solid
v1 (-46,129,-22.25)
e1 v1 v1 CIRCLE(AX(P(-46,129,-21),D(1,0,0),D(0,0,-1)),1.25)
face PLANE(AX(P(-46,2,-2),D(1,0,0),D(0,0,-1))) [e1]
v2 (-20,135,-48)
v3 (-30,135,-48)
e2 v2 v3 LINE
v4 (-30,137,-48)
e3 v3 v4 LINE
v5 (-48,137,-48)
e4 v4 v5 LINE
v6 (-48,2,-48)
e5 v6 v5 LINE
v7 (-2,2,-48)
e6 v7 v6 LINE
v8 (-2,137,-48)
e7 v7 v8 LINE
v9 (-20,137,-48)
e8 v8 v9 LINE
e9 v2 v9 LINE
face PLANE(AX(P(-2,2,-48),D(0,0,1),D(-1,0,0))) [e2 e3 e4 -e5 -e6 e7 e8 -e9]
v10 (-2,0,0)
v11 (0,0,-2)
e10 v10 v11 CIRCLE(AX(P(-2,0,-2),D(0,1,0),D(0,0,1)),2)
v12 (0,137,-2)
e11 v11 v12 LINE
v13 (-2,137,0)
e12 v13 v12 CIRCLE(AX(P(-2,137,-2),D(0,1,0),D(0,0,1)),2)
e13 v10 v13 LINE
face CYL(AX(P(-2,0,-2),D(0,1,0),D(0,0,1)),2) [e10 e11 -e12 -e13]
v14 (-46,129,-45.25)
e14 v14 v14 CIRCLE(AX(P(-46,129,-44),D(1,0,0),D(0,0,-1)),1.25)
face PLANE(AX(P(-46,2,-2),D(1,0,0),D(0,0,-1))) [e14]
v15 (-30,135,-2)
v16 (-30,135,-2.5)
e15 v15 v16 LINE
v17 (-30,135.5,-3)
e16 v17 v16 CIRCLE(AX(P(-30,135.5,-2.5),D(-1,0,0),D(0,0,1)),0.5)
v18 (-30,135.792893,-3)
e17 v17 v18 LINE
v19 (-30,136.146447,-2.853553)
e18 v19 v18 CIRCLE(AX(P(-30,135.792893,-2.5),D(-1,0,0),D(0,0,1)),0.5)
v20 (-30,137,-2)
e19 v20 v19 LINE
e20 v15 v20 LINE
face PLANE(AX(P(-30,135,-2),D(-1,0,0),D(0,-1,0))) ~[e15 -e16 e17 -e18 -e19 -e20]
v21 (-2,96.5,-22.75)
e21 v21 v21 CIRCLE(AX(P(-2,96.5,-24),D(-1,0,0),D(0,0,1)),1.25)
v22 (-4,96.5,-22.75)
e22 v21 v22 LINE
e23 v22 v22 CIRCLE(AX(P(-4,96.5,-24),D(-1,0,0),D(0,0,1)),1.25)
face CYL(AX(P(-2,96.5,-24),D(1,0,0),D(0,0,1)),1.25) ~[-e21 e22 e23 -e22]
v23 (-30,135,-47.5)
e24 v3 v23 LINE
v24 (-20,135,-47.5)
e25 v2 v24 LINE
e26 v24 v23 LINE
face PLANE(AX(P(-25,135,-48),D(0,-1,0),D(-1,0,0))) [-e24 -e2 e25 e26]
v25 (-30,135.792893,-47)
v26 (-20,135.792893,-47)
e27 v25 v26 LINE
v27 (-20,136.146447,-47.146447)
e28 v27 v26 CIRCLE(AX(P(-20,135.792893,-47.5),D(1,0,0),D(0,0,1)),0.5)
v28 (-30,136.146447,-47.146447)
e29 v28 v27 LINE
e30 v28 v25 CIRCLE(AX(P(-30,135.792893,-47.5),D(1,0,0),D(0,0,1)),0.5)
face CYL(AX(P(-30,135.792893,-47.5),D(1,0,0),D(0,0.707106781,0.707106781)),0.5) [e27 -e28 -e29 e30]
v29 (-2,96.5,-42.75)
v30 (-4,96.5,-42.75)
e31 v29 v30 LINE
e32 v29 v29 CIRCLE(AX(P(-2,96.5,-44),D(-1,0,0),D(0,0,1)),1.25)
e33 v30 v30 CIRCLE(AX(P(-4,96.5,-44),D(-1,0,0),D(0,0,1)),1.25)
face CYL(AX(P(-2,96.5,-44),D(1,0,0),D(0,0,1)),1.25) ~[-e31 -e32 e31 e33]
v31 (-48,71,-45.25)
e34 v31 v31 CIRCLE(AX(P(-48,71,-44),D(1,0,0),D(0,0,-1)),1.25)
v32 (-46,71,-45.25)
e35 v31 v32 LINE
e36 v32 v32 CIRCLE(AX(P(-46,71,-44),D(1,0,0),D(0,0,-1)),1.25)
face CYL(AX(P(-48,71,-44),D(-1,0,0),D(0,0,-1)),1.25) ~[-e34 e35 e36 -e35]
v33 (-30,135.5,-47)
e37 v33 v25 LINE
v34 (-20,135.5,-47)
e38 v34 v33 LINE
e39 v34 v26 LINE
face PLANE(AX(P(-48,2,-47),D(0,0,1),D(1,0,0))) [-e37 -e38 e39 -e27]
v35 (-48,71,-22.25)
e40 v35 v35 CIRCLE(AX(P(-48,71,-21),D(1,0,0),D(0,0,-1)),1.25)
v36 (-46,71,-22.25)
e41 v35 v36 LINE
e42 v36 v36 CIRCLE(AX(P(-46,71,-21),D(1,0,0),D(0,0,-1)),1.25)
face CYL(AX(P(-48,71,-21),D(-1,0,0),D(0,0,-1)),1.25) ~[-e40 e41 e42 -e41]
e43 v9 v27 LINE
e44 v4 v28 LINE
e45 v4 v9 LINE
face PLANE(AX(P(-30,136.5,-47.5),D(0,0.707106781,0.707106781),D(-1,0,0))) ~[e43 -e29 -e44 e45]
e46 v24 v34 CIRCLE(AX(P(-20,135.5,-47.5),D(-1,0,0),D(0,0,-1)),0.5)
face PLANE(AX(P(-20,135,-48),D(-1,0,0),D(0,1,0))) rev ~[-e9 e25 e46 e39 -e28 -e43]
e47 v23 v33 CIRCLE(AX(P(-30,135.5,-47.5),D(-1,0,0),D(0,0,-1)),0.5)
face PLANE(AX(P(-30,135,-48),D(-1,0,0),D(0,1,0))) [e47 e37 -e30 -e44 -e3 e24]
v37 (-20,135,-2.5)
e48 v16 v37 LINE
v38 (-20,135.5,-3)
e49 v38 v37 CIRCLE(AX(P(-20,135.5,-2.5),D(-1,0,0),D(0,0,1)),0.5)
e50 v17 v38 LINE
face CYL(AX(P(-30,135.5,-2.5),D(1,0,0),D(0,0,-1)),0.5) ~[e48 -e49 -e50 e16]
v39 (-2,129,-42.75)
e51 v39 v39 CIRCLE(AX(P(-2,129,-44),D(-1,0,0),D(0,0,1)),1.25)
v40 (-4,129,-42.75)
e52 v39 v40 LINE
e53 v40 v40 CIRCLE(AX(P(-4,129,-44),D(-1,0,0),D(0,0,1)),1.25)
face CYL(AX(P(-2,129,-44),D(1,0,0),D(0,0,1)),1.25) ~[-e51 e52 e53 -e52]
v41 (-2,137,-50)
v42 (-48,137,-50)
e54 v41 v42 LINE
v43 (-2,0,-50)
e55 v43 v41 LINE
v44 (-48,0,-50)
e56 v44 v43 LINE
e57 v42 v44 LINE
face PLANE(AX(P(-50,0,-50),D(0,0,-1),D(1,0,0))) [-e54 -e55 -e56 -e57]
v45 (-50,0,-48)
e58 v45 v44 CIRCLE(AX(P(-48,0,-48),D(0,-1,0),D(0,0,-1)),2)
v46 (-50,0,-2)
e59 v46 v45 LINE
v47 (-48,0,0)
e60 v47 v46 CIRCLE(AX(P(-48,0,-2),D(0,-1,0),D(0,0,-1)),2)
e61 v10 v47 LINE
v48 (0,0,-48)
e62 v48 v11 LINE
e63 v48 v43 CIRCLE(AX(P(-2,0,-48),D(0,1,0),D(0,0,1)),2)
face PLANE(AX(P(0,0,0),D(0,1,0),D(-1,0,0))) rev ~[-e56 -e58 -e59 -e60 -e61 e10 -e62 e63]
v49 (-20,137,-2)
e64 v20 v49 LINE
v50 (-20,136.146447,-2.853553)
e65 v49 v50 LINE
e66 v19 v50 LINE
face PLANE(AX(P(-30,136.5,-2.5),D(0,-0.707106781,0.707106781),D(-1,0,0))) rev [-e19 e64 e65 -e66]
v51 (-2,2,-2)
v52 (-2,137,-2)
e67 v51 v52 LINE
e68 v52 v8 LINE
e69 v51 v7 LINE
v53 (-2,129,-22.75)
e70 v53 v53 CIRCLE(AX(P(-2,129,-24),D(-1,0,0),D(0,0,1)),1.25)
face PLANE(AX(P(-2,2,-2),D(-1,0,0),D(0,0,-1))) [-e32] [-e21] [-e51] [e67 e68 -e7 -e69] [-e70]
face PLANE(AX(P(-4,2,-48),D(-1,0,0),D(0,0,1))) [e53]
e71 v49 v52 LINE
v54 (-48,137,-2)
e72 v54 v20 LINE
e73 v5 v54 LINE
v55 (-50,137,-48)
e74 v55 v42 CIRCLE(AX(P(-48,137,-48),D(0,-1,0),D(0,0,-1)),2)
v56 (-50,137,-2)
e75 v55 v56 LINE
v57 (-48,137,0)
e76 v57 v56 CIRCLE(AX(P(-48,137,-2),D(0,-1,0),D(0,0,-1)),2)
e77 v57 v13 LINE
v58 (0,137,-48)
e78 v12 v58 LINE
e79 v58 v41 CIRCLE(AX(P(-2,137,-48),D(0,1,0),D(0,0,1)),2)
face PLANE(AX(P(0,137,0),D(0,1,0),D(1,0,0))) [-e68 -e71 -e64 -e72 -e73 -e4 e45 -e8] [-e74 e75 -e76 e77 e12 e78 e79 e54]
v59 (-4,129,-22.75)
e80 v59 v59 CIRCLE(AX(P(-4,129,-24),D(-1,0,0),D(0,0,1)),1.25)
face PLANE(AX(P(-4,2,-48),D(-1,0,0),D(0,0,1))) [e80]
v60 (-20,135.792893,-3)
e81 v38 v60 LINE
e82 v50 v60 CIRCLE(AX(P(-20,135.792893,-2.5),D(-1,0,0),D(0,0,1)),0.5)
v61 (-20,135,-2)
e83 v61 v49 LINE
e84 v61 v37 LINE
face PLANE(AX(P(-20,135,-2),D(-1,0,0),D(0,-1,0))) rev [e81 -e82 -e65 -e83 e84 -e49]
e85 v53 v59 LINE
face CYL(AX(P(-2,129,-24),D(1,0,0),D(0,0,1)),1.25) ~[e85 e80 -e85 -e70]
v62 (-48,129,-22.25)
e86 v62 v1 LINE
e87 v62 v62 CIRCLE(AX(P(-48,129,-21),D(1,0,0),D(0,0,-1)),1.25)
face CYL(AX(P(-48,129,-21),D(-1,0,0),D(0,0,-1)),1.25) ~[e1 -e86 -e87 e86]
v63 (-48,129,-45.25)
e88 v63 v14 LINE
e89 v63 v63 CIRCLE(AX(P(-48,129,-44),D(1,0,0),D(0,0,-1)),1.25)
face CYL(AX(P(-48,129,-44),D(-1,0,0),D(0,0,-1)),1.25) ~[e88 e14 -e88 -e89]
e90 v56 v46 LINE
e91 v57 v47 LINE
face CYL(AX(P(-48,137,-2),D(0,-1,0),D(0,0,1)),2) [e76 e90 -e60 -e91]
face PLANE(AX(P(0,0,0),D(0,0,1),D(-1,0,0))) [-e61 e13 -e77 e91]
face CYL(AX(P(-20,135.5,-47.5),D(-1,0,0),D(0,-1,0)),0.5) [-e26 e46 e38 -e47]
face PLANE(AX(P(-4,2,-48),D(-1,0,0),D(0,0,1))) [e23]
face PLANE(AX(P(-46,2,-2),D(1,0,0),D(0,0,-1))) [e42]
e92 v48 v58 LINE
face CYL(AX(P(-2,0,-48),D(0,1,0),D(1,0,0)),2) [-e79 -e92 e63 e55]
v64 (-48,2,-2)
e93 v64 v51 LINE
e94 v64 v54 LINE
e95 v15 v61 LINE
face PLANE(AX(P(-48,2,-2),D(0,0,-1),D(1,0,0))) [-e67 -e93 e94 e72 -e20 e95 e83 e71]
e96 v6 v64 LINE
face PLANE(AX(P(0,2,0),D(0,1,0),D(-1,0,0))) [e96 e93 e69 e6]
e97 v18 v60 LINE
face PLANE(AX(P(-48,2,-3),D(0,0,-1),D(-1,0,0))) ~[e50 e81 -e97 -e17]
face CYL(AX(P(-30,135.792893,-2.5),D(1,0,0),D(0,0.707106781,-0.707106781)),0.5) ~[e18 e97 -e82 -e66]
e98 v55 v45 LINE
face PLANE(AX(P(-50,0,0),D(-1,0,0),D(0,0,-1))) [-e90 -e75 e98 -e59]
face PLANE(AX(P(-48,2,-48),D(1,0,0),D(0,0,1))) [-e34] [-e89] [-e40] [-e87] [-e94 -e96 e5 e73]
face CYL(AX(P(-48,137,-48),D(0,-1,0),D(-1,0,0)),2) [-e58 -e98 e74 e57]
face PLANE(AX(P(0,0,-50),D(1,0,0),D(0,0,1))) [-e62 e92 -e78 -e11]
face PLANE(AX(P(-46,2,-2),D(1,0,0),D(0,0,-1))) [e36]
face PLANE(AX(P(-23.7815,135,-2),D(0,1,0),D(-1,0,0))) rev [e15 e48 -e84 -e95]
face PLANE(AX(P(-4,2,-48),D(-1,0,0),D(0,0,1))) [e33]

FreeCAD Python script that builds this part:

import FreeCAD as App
import Part
import Sketcher

V = App.Vector


def edges_at(feature, points):
    """Names of the edges that pass closest to the given points."""
    edges = feature.Shape.Edges
    near = lambda p: min(range(len(edges)), key=lambda i: edges[i].distToShape(Part.Vertex(*p))[0])
    return sorted({f"Edge{near(p) + 1}" for p in points})


def add_polygon(sketch, points):
    """Adds a closed chain of lines whose ends are joined by coincident constraints."""
    first, n = sketch.GeometryCount, len(points)
    for a, b in zip(points, points[1:] + points[:1]):
        sketch.addGeometry(Part.LineSegment(App.Vector(*a, 0), App.Vector(*b, 0)), False)
    for i in range(n):
        sketch.addConstraint(Sketcher.Constraint("Coincident", first + i, 2, first + (i + 1) % n, 1))

doc = App.newDocument("Part")
params = doc.addObject("Spreadsheet::Sheet", "Params")
for row, (alias, value) in enumerate([
    ("sketch1_width", "50 mm"),
    ("pad1_length", "2 mm"),
    ("sketch2_width", "50 mm"),
    ("pad2_length", "135 mm"),
    ("fillet_radius", "2 mm"),
    ("sketch3_diameter", "2.5 mm"),
    ("pad3_length", "2 mm"),
    ("sketch4_diameter", "2.5 mm"),
    ("pad4_length", "2 mm"),
    ("sketch5_height", "2 mm"),
    ("sketch5_width", "10 mm"),
    ("pad5_length", "1 mm"),
    ("chamfer_size", "1 mm"),
    ("chamfer2_size", "1 mm"),
    ("fillet2_radius", "0.5 mm"),
], start=1):
    params.set(f"A{row}", alias)
    params.set(f"B{row}", "=" + value)
    params.setAlias(f"B{row}", alias)

body = doc.addObject("PartDesign::Body", "Body")

# Sketch on XZ plane
sketch1 = body.newObject("Sketcher::SketchObject", "Sketch")
sketch1.AttachmentSupport = (doc.getObject("XZ_Plane"), [""])
sketch1.MapMode = "FlatFace"
add_polygon(sketch1, [(-50, 0), (0, 0), (0, -50), (-50, -50)])  # lines 0-3
sketch1.addConstraint([
    Sketcher.Constraint("Horizontal", 0),
    Sketcher.Constraint("Vertical", 1),
    Sketcher.Constraint("Horizontal", 2),
    Sketcher.Constraint("Vertical", 3),
    Sketcher.Constraint("Coincident", 0, 2, -1, 1),
    Sketcher.Constraint("Equal", 2, 1),
    Sketcher.Constraint("DistanceX", 0, 1, 0, 2, 50.0),
])
sketch1.setExpression("Constraints[10]", "Params.sketch1_width")
pad1 = body.newObject("PartDesign::Pad", "Pad")
pad1.Profile = sketch1
pad1.setExpression("Length", "Params.pad1_length")
pad1.Reversed = True

# Sketch on XZ plane
sketch2 = body.newObject("Sketcher::SketchObject", "Sketch001")
sketch2.AttachmentSupport = (doc.getObject("XZ_Plane"), [""])
sketch2.MapMode = "FlatFace"
sketch2.AttachmentOffset = App.Placement(V(0, 0, -2), App.Rotation())
add_polygon(sketch2, [(0, 0), (0, -50), (-50, -50), (-50, 0)])  # lines 0-3
add_polygon(sketch2, [(-2, -2), (-48, -2), (-48, -48), (-2, -48)])  # lines 4-7
sketch2.addConstraint([
    Sketcher.Constraint("Vertical", 0),
    Sketcher.Constraint("Horizontal", 1),
    Sketcher.Constraint("Vertical", 2),
    Sketcher.Constraint("Horizontal", 3),
    Sketcher.Constraint("Horizontal", 4),
    Sketcher.Constraint("Vertical", 5),
    Sketcher.Constraint("Horizontal", 6),
    Sketcher.Constraint("Vertical", 7),
    Sketcher.Constraint("Coincident", 3, 2, -1, 1),
    Sketcher.Constraint("Equal", 3, 0),
    Sketcher.Constraint("Equal", 6, 5),
    Sketcher.Constraint("DistanceY", 4, 2, -1, 1, 2.0),
    Sketcher.Constraint("DistanceX", 6, 2, -1, 1, 2.0),
    Sketcher.Constraint("DistanceX", 2, 2, 4, 2, 2.0),
    Sketcher.Constraint("DistanceX", 1, 2, 1, 1, 50.0),
])
sketch2.setExpression("Constraints[22]", "Params.sketch2_width")
pad2 = body.newObject("PartDesign::Pad", "Pad001")
pad2.Profile = sketch2
pad2.setExpression("Length", "Params.pad2_length")
pad2.Reversed = True
doc.recompute()

fillet = body.newObject("PartDesign::Fillet", "Fillet")
fillet.Base = (pad2, edges_at(pad2, [
    (0, 68.5, 0),
    (0, 68.5, -50),
    (-50, 68.5, -50),
    (-50, 68.5, 0),
]))
fillet.setExpression("Radius", "Params.fillet_radius")

# Sketch on YZ plane
sketch3 = body.newObject("Sketcher::SketchObject", "Sketch002")
sketch3.AttachmentSupport = (doc.getObject("YZ_Plane"), [""])
sketch3.MapMode = "FlatFace"
sketch3.AttachmentOffset = App.Placement(V(0, 0, -2), App.Rotation())
sketch3.addGeometry([
    Part.Circle(V(129, -44, 0), V(0, 0, 1), 1.2),
    Part.Circle(V(96.5, -44, 0), V(0, 0, 1), 1.2),
    Part.Circle(V(129, -24, 0), V(0, 0, 1), 1.2),
    Part.Circle(V(96.5, -24, 0), V(0, 0, 1), 1.2),
], False)
sketch3.addConstraint([
    Sketcher.Constraint("Equal", 0, 1),
    Sketcher.Constraint("Equal", 1, 2),
    Sketcher.Constraint("Equal", 2, 3),
    Sketcher.Constraint("Horizontal", 0, 3, 1, 3),
    Sketcher.Constraint("Horizontal", 2, 3, 3, 3),
    Sketcher.Constraint("Vertical", 0, 3, 2, 3),
    Sketcher.Constraint("Vertical", 1, 3, 3, 3),
    Sketcher.Constraint("Diameter", 0, 2.5),
    Sketcher.Constraint("DistanceY", 0, 3, 2, 3, 20.0),
    Sketcher.Constraint("DistanceX", 1, 3, 0, 3, 32.5),
    Sketcher.Constraint("DistanceX", -1, 1, 0, 3, 129.0),
    Sketcher.Constraint("DistanceY", 0, 3, -1, 1, 44.0),
])
sketch3.setExpression("Constraints[7]", "Params.sketch3_diameter")
pad3 = body.newObject("PartDesign::Pad", "Pad002")
pad3.Profile = sketch3
pad3.setExpression("Length", "Params.pad3_length")
pad3.Reversed = True

# Sketch on YZ plane
sketch4 = body.newObject("Sketcher::SketchObject", "Sketch003")
sketch4.AttachmentSupport = (doc.getObject("YZ_Plane"), [""])
sketch4.MapMode = "FlatFace"
sketch4.AttachmentOffset = App.Placement(V(0, 0, -48), App.Rotation())
sketch4.addGeometry([
    Part.Circle(V(129, -44, 0), V(0, 0, 1), 1.2),
    Part.Circle(V(71, -44, 0), V(0, 0, 1), 1.2),
    Part.Circle(V(129, -21, 0), V(0, 0, 1), 1.2),
    Part.Circle(V(71, -21, 0), V(0, 0, 1), 1.2),
], False)
sketch4.addConstraint([
    Sketcher.Constraint("Equal", 0, 1),
    Sketcher.Constraint("Equal", 1, 2),
    Sketcher.Constraint("Equal", 2, 3),
    Sketcher.Constraint("Horizontal", 0, 3, 1, 3),
    Sketcher.Constraint("Horizontal", 2, 3, 3, 3),
    Sketcher.Constraint("Vertical", 0, 3, 2, 3),
    Sketcher.Constraint("Vertical", 1, 3, 3, 3),
    Sketcher.Constraint("Diameter", 0, 2.5),
    Sketcher.Constraint("DistanceX", 1, 3, 0, 3, 58.0),
    Sketcher.Constraint("DistanceY", 0, 3, 2, 3, 23.0),
    Sketcher.Constraint("DistanceX", -1, 1, 0, 3, 129.0),
    Sketcher.Constraint("DistanceY", 0, 3, -1, 1, 44.0),
])
sketch4.setExpression("Constraints[7]", "Params.sketch4_diameter")
pad4 = body.newObject("PartDesign::Pad", "Pad003")
pad4.Profile = sketch4
pad4.setExpression("Length", "Params.pad4_length")

# Sketch on XY plane
sketch5 = body.newObject("Sketcher::SketchObject", "Sketch004")
sketch5.AttachmentSupport = (doc.getObject("XY_Plane"), [""])
sketch5.MapMode = "FlatFace"
sketch5.AttachmentOffset = App.Placement(V(0, 0, -48), App.Rotation())
add_polygon(sketch5, [(-20, 137), (-30, 137), (-30, 135), (-20, 135)])  # lines 0-3
sketch5.addConstraint([
    Sketcher.Constraint("Horizontal", 0),
    Sketcher.Constraint("Vertical", 1),
    Sketcher.Constraint("Horizontal", 2),
    Sketcher.Constraint("Vertical", 3),
    Sketcher.Constraint("DistanceY", 1, 2, 1, 1, 2.0),
    Sketcher.Constraint("DistanceX", 0, 2, 0, 1, 10.0),
    Sketcher.Constraint("DistanceX", 0, 2, -1, 1, 30.0),
    Sketcher.Constraint("DistanceY", -1, 1, 0, 2, 137.0),
])
sketch5.setExpression("Constraints[8]", "Params.sketch5_height")
sketch5.setExpression("Constraints[9]", "Params.sketch5_width")
pad5 = body.newObject("PartDesign::Pad", "Pad004")
pad5.Profile = sketch5
pad5.setExpression("Length", "Params.pad5_length")
doc.recompute()

chamfer = body.newObject("PartDesign::Chamfer", "Chamfer")
chamfer.Base = (pad5, edges_at(pad5, [(-25, 137, -47)]))
chamfer.setExpression("Size", "Params.chamfer_size")
doc.recompute()

datumplane = body.newObject("PartDesign::Plane", "DatumPlane")
datumplane.AttachmentSupport = (doc.getObject("XY_Plane"), [""])
datumplane.MapMode = "FlatFace"
datumplane.AttachmentOffset = App.Placement(V(0, 0, -25), App.Rotation())
mirrored = body.newObject("PartDesign::Mirrored", "Mirrored")
mirrored.Originals = [pad5]
mirrored.MirrorPlane = (datumplane, [""])
body.Tip = mirrored
doc.recompute()

chamfer2 = body.newObject("PartDesign::Chamfer", "Chamfer001")
chamfer2.Base = (mirrored, edges_at(mirrored, [(-25, 137, -3)]))
chamfer2.setExpression("Size", "Params.chamfer2_size")
doc.recompute()

fillet2 = body.newObject("PartDesign::Fillet", "Fillet001")
fillet2.Base = (chamfer2, edges_at(chamfer2, [
    (-25, 136, -47),
    (-25, 135, -47),
    (-25, 135, -3),
    (-25, 136, -3),
]))
fillet2.setExpression("Radius", "Params.fillet2_radius")

doc.recompute()
